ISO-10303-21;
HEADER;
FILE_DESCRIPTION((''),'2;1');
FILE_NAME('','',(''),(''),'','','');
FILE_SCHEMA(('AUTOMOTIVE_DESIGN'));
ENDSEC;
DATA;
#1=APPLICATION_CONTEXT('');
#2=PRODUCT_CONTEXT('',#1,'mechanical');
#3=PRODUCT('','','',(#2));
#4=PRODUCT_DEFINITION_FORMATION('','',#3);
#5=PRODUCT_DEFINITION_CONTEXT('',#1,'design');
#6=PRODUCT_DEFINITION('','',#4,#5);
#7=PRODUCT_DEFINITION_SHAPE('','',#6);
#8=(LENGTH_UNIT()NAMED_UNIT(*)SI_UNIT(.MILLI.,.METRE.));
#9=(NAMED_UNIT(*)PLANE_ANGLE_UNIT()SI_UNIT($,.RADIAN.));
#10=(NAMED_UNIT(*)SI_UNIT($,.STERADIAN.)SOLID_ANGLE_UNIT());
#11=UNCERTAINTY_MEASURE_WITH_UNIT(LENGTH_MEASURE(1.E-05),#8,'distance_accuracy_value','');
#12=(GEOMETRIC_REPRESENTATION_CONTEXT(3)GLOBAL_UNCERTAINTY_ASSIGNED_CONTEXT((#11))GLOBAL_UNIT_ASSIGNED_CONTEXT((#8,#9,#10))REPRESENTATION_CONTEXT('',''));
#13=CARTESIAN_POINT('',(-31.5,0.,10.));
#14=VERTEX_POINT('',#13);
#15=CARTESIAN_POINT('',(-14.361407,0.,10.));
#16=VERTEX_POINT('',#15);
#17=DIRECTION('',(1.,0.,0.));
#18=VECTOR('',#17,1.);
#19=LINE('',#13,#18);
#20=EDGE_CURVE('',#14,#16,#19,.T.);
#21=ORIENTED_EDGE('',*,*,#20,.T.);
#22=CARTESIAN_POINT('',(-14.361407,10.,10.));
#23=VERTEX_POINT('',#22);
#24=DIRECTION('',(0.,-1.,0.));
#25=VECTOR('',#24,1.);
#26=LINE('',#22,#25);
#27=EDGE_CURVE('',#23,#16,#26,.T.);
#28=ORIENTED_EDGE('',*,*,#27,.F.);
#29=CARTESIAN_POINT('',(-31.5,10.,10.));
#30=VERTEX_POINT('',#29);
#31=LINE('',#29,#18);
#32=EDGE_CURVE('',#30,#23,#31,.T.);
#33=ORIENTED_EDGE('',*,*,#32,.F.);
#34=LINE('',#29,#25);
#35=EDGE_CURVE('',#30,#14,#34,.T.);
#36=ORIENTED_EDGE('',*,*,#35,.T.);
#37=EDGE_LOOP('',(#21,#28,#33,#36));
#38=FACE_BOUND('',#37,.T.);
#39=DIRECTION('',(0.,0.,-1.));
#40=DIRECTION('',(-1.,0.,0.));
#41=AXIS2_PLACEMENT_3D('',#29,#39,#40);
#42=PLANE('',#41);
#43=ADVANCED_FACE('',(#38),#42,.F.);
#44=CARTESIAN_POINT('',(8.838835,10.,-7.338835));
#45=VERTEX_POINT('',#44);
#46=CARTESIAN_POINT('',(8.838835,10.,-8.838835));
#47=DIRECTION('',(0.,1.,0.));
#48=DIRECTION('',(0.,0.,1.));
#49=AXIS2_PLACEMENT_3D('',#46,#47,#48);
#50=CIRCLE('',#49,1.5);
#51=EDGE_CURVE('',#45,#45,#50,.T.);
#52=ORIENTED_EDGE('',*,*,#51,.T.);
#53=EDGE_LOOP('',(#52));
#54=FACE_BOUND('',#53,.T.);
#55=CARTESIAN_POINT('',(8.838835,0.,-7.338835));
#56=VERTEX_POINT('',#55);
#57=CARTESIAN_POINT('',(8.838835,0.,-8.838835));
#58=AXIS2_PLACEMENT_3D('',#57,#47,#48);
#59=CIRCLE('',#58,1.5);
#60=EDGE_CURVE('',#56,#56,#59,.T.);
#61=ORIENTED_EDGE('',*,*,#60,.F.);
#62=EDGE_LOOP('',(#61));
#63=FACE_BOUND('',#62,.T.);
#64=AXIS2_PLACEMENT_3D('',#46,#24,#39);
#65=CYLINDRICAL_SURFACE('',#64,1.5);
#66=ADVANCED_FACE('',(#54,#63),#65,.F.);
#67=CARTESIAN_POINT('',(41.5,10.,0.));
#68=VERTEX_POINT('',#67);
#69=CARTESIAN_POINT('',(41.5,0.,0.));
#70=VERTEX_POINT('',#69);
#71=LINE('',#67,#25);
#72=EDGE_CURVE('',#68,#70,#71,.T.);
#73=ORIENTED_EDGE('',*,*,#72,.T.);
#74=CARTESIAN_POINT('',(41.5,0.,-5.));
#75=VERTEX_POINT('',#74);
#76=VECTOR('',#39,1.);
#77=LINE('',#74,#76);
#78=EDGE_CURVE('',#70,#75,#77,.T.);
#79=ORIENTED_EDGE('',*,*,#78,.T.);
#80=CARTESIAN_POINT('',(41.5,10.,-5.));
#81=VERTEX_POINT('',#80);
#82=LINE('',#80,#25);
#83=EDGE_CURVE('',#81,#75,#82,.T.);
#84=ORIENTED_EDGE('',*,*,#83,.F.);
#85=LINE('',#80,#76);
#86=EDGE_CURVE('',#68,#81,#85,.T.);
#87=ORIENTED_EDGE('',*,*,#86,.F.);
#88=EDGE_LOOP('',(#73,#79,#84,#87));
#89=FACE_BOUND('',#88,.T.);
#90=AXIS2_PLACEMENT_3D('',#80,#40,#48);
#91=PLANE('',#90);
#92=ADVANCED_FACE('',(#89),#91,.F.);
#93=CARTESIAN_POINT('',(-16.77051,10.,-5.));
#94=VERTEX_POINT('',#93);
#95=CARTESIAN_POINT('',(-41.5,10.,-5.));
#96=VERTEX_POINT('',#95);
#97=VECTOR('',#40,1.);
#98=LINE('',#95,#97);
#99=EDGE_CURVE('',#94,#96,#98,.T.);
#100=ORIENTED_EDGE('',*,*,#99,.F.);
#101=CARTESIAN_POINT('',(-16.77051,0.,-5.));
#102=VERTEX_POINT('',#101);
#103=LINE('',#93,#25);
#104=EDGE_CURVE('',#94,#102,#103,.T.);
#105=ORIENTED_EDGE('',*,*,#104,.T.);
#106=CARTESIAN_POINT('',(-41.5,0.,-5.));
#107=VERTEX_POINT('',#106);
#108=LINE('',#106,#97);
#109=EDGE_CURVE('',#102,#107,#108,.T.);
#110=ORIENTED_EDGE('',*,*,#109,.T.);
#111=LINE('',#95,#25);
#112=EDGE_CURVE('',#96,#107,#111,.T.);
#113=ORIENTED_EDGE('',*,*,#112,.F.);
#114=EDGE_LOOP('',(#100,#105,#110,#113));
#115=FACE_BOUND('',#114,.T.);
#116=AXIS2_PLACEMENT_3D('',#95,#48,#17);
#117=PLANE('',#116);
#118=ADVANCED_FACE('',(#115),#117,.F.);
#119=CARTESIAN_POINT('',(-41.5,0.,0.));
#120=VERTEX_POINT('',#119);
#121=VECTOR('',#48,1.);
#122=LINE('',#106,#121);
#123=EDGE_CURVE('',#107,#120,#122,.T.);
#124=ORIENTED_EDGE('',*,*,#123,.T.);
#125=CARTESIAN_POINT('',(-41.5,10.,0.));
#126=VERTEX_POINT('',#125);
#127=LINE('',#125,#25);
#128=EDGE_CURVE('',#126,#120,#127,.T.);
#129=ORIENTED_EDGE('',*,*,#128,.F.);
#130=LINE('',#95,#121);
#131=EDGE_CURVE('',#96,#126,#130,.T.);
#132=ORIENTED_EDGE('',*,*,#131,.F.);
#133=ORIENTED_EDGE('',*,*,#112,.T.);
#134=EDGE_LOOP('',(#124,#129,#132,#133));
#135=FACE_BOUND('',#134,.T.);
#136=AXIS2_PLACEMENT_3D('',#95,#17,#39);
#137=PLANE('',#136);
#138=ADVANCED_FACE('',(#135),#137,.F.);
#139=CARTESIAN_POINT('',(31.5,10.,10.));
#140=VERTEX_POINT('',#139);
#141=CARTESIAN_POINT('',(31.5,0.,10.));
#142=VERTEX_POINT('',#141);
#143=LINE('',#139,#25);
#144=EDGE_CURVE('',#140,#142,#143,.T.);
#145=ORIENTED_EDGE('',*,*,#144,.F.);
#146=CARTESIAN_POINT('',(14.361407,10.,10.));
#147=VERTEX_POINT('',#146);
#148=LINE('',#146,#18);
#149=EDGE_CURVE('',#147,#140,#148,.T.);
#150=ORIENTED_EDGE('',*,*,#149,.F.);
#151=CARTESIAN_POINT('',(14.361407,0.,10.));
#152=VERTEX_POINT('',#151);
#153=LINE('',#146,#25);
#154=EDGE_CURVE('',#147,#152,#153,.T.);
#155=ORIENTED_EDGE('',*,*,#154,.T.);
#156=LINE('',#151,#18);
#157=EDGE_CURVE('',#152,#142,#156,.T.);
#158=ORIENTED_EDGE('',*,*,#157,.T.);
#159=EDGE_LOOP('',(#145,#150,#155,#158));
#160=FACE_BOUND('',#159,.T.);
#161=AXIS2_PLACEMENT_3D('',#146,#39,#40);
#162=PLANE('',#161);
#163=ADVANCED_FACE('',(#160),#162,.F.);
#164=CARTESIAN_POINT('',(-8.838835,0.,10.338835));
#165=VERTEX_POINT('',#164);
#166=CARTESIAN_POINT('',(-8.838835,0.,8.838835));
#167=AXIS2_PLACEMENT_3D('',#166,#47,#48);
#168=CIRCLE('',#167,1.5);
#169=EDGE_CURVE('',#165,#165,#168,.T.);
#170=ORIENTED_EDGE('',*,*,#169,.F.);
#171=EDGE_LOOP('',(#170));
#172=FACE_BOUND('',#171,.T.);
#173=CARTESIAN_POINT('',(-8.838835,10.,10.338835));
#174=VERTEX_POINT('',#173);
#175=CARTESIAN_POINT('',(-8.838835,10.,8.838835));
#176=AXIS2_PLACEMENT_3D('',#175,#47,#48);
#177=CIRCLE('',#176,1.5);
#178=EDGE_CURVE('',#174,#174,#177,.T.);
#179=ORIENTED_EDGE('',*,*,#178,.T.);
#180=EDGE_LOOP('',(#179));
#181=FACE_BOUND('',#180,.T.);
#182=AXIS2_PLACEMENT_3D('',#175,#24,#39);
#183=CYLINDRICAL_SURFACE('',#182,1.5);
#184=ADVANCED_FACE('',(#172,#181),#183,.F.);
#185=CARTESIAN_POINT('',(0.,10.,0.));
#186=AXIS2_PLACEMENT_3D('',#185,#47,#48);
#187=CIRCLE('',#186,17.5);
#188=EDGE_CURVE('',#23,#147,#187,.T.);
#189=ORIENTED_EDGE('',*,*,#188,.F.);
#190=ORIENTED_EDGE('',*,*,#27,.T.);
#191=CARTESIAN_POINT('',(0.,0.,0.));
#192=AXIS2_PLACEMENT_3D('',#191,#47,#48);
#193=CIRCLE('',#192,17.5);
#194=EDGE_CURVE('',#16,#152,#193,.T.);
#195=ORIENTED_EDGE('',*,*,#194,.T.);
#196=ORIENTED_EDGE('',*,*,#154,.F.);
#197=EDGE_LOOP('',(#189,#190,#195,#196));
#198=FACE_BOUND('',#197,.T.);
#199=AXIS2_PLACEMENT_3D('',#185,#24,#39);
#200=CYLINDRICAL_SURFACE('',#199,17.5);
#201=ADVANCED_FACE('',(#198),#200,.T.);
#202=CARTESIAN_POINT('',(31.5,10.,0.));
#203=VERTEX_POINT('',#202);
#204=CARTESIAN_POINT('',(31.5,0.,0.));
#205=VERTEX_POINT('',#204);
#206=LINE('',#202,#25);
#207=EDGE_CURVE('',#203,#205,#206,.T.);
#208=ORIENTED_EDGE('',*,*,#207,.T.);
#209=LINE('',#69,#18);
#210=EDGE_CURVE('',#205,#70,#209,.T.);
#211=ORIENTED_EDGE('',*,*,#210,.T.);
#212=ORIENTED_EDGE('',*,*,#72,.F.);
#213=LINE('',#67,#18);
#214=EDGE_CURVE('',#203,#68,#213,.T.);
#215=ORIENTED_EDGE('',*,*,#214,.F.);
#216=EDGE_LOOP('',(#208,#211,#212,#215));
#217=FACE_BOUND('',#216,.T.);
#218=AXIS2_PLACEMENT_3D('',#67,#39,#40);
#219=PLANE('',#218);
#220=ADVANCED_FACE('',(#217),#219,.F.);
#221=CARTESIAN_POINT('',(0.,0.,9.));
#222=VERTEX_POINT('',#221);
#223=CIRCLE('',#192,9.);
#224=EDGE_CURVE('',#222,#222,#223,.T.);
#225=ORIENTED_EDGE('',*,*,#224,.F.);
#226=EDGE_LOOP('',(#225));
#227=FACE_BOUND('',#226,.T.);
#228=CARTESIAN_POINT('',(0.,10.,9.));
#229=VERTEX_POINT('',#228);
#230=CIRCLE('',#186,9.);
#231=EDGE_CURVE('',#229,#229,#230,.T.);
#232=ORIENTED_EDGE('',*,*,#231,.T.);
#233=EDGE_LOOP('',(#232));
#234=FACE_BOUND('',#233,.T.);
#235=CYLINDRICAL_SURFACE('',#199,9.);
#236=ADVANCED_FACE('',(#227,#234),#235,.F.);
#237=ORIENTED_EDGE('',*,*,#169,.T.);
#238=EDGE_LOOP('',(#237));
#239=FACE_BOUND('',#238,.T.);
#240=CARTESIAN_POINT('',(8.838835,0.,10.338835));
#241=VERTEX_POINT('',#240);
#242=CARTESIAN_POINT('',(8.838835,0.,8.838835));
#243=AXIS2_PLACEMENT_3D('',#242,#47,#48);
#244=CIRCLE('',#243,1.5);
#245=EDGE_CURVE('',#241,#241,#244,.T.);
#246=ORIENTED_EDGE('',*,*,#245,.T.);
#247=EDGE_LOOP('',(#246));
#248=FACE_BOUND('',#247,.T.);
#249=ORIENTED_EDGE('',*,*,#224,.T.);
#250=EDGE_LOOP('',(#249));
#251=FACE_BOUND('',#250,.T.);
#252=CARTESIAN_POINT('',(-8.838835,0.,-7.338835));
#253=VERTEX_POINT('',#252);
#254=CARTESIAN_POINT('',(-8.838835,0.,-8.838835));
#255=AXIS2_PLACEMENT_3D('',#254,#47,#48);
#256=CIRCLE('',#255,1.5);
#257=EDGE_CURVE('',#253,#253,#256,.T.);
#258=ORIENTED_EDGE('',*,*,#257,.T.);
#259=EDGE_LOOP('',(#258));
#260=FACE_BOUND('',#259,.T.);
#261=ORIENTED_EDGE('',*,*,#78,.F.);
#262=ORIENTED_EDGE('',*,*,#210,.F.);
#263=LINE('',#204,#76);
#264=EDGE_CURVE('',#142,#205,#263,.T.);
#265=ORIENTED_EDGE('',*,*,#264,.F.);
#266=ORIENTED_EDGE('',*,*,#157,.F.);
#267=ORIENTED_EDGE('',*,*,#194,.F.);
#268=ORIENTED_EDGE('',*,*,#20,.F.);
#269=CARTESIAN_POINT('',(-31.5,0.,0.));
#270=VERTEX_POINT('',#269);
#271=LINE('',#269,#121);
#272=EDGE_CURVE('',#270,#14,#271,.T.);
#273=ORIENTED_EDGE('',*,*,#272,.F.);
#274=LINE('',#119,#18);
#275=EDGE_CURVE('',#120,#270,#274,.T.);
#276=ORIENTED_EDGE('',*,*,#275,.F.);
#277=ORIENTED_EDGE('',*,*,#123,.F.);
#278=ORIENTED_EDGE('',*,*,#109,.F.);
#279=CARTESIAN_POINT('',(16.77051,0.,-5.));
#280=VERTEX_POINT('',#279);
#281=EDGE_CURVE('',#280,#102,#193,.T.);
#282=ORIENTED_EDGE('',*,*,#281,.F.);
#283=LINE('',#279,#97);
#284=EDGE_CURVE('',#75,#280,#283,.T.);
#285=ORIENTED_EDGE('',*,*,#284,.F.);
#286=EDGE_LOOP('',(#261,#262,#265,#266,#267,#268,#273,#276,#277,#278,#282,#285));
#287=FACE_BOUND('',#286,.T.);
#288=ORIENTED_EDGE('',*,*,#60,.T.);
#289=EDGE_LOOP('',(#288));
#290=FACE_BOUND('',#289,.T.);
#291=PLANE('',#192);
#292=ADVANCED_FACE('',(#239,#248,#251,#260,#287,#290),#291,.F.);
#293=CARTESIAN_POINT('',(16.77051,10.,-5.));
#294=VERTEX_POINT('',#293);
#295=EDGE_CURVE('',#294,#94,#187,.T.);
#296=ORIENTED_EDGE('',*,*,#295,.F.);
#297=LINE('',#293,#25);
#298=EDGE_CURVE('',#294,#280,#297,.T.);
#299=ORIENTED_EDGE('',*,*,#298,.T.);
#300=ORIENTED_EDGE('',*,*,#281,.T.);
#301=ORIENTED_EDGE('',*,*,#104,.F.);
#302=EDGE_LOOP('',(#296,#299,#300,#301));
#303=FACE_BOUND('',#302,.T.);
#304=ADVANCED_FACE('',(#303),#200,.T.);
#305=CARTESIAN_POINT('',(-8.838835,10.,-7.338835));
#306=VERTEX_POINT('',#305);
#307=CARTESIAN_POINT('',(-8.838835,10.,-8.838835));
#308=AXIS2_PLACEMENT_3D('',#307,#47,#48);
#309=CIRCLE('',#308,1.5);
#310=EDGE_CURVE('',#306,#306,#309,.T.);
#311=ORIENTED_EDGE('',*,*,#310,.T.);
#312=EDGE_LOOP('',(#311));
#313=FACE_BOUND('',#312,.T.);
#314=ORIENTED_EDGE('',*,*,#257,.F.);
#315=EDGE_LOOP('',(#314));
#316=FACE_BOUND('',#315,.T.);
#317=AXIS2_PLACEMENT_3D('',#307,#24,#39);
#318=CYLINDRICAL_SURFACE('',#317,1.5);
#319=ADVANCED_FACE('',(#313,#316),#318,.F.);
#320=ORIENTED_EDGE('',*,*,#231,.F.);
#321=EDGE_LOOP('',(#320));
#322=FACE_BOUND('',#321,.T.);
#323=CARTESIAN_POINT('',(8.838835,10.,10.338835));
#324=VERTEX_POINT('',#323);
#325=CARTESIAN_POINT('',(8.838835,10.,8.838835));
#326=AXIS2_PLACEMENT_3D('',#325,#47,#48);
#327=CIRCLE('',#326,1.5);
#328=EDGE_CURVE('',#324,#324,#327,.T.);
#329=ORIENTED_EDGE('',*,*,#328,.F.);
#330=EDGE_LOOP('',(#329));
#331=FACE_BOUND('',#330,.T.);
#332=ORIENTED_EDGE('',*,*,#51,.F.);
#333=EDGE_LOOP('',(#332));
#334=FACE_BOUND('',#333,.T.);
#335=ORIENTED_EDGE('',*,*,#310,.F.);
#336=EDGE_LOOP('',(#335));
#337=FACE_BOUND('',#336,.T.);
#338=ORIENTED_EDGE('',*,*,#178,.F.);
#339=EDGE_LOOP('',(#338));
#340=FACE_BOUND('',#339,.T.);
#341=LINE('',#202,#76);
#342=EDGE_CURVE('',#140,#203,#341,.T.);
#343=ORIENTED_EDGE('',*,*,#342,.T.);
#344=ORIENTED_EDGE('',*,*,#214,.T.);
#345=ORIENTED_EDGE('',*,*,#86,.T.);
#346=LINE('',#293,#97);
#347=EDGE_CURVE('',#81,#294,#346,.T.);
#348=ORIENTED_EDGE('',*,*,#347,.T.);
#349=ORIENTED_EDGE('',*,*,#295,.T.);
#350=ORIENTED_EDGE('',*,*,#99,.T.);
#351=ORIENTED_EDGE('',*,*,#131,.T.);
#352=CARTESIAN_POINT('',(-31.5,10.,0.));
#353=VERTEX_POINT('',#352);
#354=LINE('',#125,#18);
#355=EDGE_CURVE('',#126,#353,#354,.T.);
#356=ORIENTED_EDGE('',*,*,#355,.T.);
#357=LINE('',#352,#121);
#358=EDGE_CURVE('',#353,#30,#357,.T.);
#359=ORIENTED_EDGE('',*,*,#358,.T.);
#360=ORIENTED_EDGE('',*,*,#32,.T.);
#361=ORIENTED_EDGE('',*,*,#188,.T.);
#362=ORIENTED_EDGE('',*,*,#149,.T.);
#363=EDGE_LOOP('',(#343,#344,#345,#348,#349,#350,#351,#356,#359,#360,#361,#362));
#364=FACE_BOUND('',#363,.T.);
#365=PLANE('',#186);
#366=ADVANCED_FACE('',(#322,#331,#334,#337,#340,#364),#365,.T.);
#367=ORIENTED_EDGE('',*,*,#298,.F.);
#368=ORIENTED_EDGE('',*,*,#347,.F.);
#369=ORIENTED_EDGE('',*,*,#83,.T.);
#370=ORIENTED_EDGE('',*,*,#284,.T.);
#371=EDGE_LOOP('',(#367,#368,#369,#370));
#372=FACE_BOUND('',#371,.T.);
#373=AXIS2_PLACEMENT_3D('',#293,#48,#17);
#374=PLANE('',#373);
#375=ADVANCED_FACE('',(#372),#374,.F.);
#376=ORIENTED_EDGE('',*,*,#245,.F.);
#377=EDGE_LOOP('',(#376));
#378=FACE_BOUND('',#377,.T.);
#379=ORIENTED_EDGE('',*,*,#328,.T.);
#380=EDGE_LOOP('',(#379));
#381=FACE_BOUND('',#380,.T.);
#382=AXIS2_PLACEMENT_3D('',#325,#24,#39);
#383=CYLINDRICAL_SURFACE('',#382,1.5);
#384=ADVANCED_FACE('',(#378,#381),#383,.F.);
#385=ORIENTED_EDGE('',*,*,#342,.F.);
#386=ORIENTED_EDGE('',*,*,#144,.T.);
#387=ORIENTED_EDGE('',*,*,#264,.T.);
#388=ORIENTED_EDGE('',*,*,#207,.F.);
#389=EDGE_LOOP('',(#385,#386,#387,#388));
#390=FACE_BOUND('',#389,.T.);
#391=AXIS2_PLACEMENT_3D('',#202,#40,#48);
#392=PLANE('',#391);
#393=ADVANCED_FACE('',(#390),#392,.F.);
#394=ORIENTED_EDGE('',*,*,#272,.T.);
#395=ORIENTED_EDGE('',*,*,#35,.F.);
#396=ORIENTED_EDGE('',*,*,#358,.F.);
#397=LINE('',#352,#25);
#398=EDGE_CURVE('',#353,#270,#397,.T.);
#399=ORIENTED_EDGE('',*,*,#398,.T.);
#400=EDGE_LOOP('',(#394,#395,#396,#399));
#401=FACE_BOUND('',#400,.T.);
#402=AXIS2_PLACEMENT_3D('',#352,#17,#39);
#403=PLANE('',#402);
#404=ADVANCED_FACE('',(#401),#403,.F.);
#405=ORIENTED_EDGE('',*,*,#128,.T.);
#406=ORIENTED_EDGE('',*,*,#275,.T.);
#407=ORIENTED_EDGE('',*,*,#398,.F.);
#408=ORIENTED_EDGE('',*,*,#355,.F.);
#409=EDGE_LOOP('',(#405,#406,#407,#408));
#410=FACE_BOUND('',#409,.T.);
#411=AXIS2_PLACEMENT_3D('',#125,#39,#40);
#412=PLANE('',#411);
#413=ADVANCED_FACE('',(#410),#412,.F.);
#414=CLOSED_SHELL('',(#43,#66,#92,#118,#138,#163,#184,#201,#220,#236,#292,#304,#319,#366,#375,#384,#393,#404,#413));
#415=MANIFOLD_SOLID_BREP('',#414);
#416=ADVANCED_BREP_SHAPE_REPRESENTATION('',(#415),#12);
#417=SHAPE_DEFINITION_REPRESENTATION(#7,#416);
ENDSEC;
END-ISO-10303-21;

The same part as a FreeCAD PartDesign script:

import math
import FreeCAD as App
import Part
import Sketcher
Q = App.Units.Quantity

doc = App.newDocument("Part")
body = doc.addObject("PartDesign::Body", "Body")

# Sketch on XZ plane
sketch1 = body.newObject("Sketcher::SketchObject", "Sketch")
sketch1.AttachmentSupport = (doc.getObject("XZ_Plane"), [""])
sketch1.MapMode = "FlatFace"
sketch1.addGeometry(Part.LineSegment(App.Vector(-31.5, 0, 0), App.Vector(-31.5, 10, 0)), False)
sketch1.addGeometry(Part.LineSegment(App.Vector(-31.5, 10, 0), App.Vector(-14.4, 10, 0)), False)
sketch1.addGeometry(Part.ArcOfCircle(Part.Circle(App.Vector(0, 0, 0), App.Vector(0, 0, 1), 17.5), math.radians(35), math.radians(145)), False)
sketch1.addGeometry(Part.LineSegment(App.Vector(14.4, 10, 0), App.Vector(31.5, 10, 0)), False)
sketch1.addGeometry(Part.LineSegment(App.Vector(31.5, 10, 0), App.Vector(31.5, 0, 0)), False)
sketch1.addGeometry(Part.LineSegment(App.Vector(31.5, 0, 0), App.Vector(41.5, 0, 0)), False)
sketch1.addGeometry(Part.LineSegment(App.Vector(41.5, 0, 0), App.Vector(41.5, -5, 0)), False)
sketch1.addGeometry(Part.LineSegment(App.Vector(41.5, -5, 0), App.Vector(16.8, -5, 0)), False)
sketch1.addGeometry(Part.ArcOfCircle(Part.Circle(App.Vector(0, 0, 0), App.Vector(0, 0, 1), 17.5), math.radians(-163), math.radians(-17)), False)
sketch1.addGeometry(Part.LineSegment(App.Vector(-16.8, -5, 0), App.Vector(-41.5, -5, 0)), False)
sketch1.addGeometry(Part.LineSegment(App.Vector(-41.5, -5, 0), App.Vector(-41.5, 0, 0)), False)
sketch1.addGeometry(Part.LineSegment(App.Vector(-41.5, 0, 0), App.Vector(-31.5, 0, 0)), False)
sketch1.addGeometry(Part.Circle(App.Vector(-8.8, 8.8, 0), App.Vector(0, 0, 1), 1.5), False)
sketch1.addGeometry(Part.Circle(App.Vector(8.8, 8.8, 0), App.Vector(0, 0, 1), 1.5), False)
sketch1.addGeometry(Part.Circle(App.Vector(-8.8, -8.8, 0), App.Vector(0, 0, 1), 1.5), False)
sketch1.addGeometry(Part.Circle(App.Vector(0, 0, 0), App.Vector(0, 0, 1), 9), False)
sketch1.addGeometry(Part.Circle(App.Vector(8.8, -8.8, 0), App.Vector(0, 0, 1), 1.5), False)
sketch1.addConstraint(Sketcher.Constraint("Coincident", 0, 2, 1, 1))
sketch1.addConstraint(Sketcher.Constraint("Coincident", 1, 2, 2, 2))
sketch1.addConstraint(Sketcher.Constraint("Coincident", 2, 1, 3, 1))
sketch1.addConstraint(Sketcher.Constraint("Coincident", 3, 2, 4, 1))
sketch1.addConstraint(Sketcher.Constraint("Coincident", 4, 2, 5, 1))
sketch1.addConstraint(Sketcher.Constraint("Coincident", 5, 2, 6, 1))
sketch1.addConstraint(Sketcher.Constraint("Coincident", 6, 2, 7, 1))
sketch1.addConstraint(Sketcher.Constraint("Coincident", 7, 2, 8, 2))
sketch1.addConstraint(Sketcher.Constraint("Coincident", 8, 1, 9, 1))
sketch1.addConstraint(Sketcher.Constraint("Coincident", 9, 2, 10, 1))
sketch1.addConstraint(Sketcher.Constraint("Coincident", 10, 2, 11, 1))
sketch1.addConstraint(Sketcher.Constraint("Coincident", 11, 2, 0, 1))
sketch1.addConstraint(Sketcher.Constraint("Vertical", 0))
sketch1.addConstraint(Sketcher.Constraint("Horizontal", 1))
sketch1.addConstraint(Sketcher.Constraint("Horizontal", 3))
sketch1.addConstraint(Sketcher.Constraint("Vertical", 4))
sketch1.addConstraint(Sketcher.Constraint("Horizontal", 5))
sketch1.addConstraint(Sketcher.Constraint("Vertical", 6))
sketch1.addConstraint(Sketcher.Constraint("Horizontal", 7))
sketch1.addConstraint(Sketcher.Constraint("Horizontal", 9))
sketch1.addConstraint(Sketcher.Constraint("Vertical", 10))
sketch1.addConstraint(Sketcher.Constraint("Horizontal", 11))
sketch1.addConstraint(Sketcher.Constraint("Coincident", 2, 3, -1, 1))
sketch1.addConstraint(Sketcher.Constraint("Coincident", 8, 3, -1, 1))
sketch1.addConstraint(Sketcher.Constraint("Coincident", 15, 3, -1, 1))
sketch1.addConstraint(Sketcher.Constraint("Equal", 2, 8))
sketch1.addConstraint(Sketcher.Constraint("Equal", 12, 13))
sketch1.addConstraint(Sketcher.Constraint("Equal", 13, 14))
sketch1.addConstraint(Sketcher.Constraint("Equal", 14, 16))
sketch1.addConstraint(Sketcher.Constraint("Symmetric", 13, 3, 14, 3, -1, 1))
sketch1.addConstraint(Sketcher.Constraint("Symmetric", 12, 3, 16, 3, -1, 1))
sketch1.addConstraint(Sketcher.Constraint("Symmetric", 5, 2, 10, 2, -1, 1))
sketch1.addConstraint(Sketcher.Constraint("Symmetric", 12, 3, 13, 3, -2))
sketch1.addConstraint(Sketcher.Constraint("Symmetric", 0, 2, 3, 2, -2))
sketch1.addConstraint(Sketcher.Constraint("PointOnObject", 4, 2, -1))
sketch1.addConstraint(Sketcher.Constraint("Horizontal", 7, 2, 8, 1))
sketch1.addConstraint(Sketcher.Constraint("Equal", 11, 0))
sketch1.addConstraint(Sketcher.Constraint("Diameter", 12, Q("3 mm")))
sketch1.addConstraint(Sketcher.Constraint("Diameter", 15, Q("18 mm")))
sketch1.addConstraint(Sketcher.Constraint("Radius", 2, Q("17.5 mm")))
sketch1.addConstraint(Sketcher.Constraint("DistanceX", 5, 1, 5, 2, Q("10 mm")))
sketch1.addConstraint(Sketcher.Constraint("DistanceY", 6, 2, 6, 1, Q("5 mm")))
sketch1.addConstraint(Sketcher.Constraint("DistanceX", 0, 2, -1, 1, Q("31.5 mm")))
sketch1.addConstraint(Sketcher.Constraint("DistanceX", 12, 3, 13, 3, Q("17.67767 mm")))
sketch1.addConstraint(Sketcher.Constraint("DistanceY", 14, 3, 12, 3, Q("17.67767 mm")))
pad1 = body.newObject("PartDesign::Pad", "Pad")
pad1.Profile = sketch1
pad1.Length = 10
pad1.Reversed = True

doc.recompute()
